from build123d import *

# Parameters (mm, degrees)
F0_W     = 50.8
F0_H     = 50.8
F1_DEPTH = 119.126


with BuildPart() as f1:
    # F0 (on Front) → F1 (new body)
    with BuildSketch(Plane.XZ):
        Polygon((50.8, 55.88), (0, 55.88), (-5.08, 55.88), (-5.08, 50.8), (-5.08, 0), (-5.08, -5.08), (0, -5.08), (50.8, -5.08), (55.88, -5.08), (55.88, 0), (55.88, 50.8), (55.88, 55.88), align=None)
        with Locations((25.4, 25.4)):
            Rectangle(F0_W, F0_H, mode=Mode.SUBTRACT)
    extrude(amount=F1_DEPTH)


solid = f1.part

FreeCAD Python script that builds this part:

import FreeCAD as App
import Part
import Sketcher
from FreeCAD import Vector
Q = App.Units.Quantity


def add_polygon(sketch, points):
    """Adds a closed chain of lines whose ends are joined by coincident constraints."""
    first, n = sketch.GeometryCount, len(points)
    for a, b in zip(points, points[1:] + points[:1]):
        sketch.addGeometry(Part.LineSegment(App.Vector(*a, 0), App.Vector(*b, 0)), False)
    for i in range(n):
        sketch.addConstraint(Sketcher.Constraint("Coincident", first + i, 2, first + (i + 1) % n, 1))

doc = App.newDocument("Part")
body = doc.addObject("PartDesign::Body", "Body")

# Sketch on XZ plane
sketch1 = body.newObject("Sketcher::SketchObject", "Sketch")
sketch1.AttachmentSupport = (doc.getObject("XZ_Plane"), [""])
sketch1.MapMode = "FlatFace"
add_polygon(sketch1, [(-5, 56), (-5, -5), (56, -5), (56, 56)])  # lines 0-3
add_polygon(sketch1, [(51, 0), (0, 0), (0, 51), (51, 51)])  # lines 4-7
sketch1.addConstraint(Sketcher.Constraint("Vertical", 0))
sketch1.addConstraint(Sketcher.Constraint("Horizontal", 1))
sketch1.addConstraint(Sketcher.Constraint("Vertical", 2))
sketch1.addConstraint(Sketcher.Constraint("Horizontal", 3))
sketch1.addConstraint(Sketcher.Constraint("Horizontal", 4))
sketch1.addConstraint(Sketcher.Constraint("Vertical", 5))
sketch1.addConstraint(Sketcher.Constraint("Horizontal", 6))
sketch1.addConstraint(Sketcher.Constraint("Vertical", 7))
sketch1.addConstraint(Sketcher.Constraint("Coincident", 4, 2, -1, 1))
sketch1.addConstraint(Sketcher.Constraint("Equal", 3, 0))
sketch1.addConstraint(Sketcher.Constraint("Equal", 6, 5))
sketch1.addConstraint(Sketcher.Constraint("DistanceX", 4, 2, 4, 1, Q("2 in")))
sketch1.addConstraint(Sketcher.Constraint("DistanceX", 1, 1, 1, 2, Q("2.4 in")))
sketch1.addConstraint(Sketcher.Constraint("DistanceX", 0, 2, -1, 1, Q("0.2 in")))
sketch1.addConstraint(Sketcher.Constraint("DistanceY", 0, 2, -1, 1, Q("0.2 in")))
pad1 = body.newObject("PartDesign::Pad", "Pad")
pad1.Profile = sketch1
pad1.Length = Q("4.69 in")

doc.recompute()
